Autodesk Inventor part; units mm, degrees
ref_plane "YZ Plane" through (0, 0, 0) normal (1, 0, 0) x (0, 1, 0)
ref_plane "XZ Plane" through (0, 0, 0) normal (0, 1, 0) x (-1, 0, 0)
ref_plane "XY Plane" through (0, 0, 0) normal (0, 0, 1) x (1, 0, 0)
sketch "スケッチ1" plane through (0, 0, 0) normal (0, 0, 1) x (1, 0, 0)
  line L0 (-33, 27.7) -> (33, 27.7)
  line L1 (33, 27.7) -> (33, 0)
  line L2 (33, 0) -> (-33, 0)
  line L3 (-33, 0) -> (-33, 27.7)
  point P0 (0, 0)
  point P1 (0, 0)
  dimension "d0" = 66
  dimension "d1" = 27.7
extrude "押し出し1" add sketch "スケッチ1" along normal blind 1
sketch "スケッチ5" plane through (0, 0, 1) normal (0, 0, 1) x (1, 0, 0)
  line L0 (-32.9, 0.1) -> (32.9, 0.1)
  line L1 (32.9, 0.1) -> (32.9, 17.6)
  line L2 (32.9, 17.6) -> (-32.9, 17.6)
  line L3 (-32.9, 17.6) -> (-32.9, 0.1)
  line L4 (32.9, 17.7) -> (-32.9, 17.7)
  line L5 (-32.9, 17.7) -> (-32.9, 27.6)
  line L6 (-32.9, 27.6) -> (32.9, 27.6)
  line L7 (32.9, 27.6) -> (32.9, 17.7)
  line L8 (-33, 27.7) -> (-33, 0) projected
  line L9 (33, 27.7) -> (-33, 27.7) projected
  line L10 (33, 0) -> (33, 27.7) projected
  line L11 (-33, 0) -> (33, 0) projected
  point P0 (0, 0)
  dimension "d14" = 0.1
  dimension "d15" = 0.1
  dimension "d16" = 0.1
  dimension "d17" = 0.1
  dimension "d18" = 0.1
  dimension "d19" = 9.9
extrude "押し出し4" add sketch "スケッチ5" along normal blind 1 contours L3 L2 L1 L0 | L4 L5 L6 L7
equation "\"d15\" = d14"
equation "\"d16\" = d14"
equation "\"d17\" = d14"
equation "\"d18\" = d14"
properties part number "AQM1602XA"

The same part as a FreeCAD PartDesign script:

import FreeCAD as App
import Part
import Sketcher

V = App.Vector


def add_polygon(sketch, points):
    """Adds a closed chain of lines whose ends are joined by coincident constraints."""
    first, n = sketch.GeometryCount, len(points)
    for a, b in zip(points, points[1:] + points[:1]):
        sketch.addGeometry(Part.LineSegment(App.Vector(*a, 0), App.Vector(*b, 0)), False)
    for i in range(n):
        sketch.addConstraint(Sketcher.Constraint("Coincident", first + i, 2, first + (i + 1) % n, 1))

doc = App.newDocument("Part")
params = doc.addObject("Spreadsheet::Sheet", "Params")
for row, (alias, value) in enumerate([
    ("sketch1_width", "66 mm"),
    ("sketch1_height", "27.7 mm"),
    ("pad1_length", "1 mm"),
    ("sketch2_height", "9.9 mm"),
    ("sketch2_width", "65.8 mm"),
    ("sketch2_height2", "17.5 mm"),
    ("pad2_length", "1 mm"),
], start=1):
    params.set(f"A{row}", alias)
    params.set(f"B{row}", "=" + value)
    params.setAlias(f"B{row}", alias)

body = doc.addObject("PartDesign::Body", "Body")

sketch1 = doc.addObject("Sketcher::SketchObject", "Sketch")
body.addObject(sketch1)
sketch1.AttachmentSupport = (doc.XY_Plane, [""])
sketch1.MapMode = "FlatFace"
add_polygon(sketch1, [(33, 27.7), (-33, 27.7), (-33, 0), (33, 0)])
sketch1.addConstraint([
    Sketcher.Constraint("Horizontal", 0),
    Sketcher.Constraint("Vertical", 1),
    Sketcher.Constraint("Horizontal", 2),
    Sketcher.Constraint("Vertical", 3),
    Sketcher.Constraint("Symmetric", 1, 2, 2, 2, -1, 1),
    Sketcher.Constraint("DistanceX", 0, 2, 0, 1, 66.0),
    Sketcher.Constraint("DistanceY", 1, 2, 1, 1, 27.7),
])
sketch1.setExpression("Constraints[9]", "Params.sketch1_width")
sketch1.setExpression("Constraints[10]", "Params.sketch1_height")
pad1 = doc.addObject("PartDesign::Pad", "Pad")
body.addObject(pad1)
pad1.Profile = sketch1
pad1.setExpression("Length", "Params.pad1_length")

sketch2 = doc.addObject("Sketcher::SketchObject", "Sketch001")
body.addObject(sketch2)
sketch2.AttachmentSupport = (doc.XY_Plane, [""])
sketch2.MapMode = "FlatFace"
sketch2.AttachmentOffset = App.Placement(V(0, 0, 1), App.Rotation())
add_polygon(sketch2, [(-32.9, 17.6), (-32.9, 0.1), (32.9, 0.1), (32.9, 17.6)])
add_polygon(sketch2, [(-32.9, 17.7), (32.9, 17.7), (32.9, 27.6), (-32.9, 27.6)])
sketch2.addConstraint([
    Sketcher.Constraint("Vertical", 0),
    Sketcher.Constraint("Horizontal", 1),
    Sketcher.Constraint("Vertical", 2),
    Sketcher.Constraint("Horizontal", 3),
    Sketcher.Constraint("Horizontal", 4),
    Sketcher.Constraint("Vertical", 5),
    Sketcher.Constraint("Horizontal", 6),
    Sketcher.Constraint("Vertical", 7),
    Sketcher.Constraint("Vertical", 2, 2, 4, 2),
    Sketcher.Constraint("Vertical", 3, 2, 6, 2),
    Sketcher.Constraint("DistanceY", 5, 1, 5, 2, 9.9),
    Sketcher.Constraint("DistanceY", -1, 1, 0, 2, 0.1),
    Sketcher.Constraint("DistanceY", 2, 2, 4, 2, 0.1),
    Sketcher.Constraint("DistanceX", 1, 1, 1, 2, 65.8),
    Sketcher.Constraint("DistanceY", 0, 2, 0, 1, 17.5),
    Sketcher.Constraint("DistanceX", 0, 2, -1, 1, 32.9),
])
sketch2.setExpression("Constraints[18]", "Params.sketch2_height")
sketch2.setExpression("Constraints[21]", "Params.sketch2_width")
sketch2.setExpression("Constraints[22]", "Params.sketch2_height2")
pad2 = doc.addObject("PartDesign::Pad", "Pad001")
body.addObject(pad2)
pad2.Profile = sketch2
pad2.setExpression("Length", "Params.pad2_length")

doc.recompute()
